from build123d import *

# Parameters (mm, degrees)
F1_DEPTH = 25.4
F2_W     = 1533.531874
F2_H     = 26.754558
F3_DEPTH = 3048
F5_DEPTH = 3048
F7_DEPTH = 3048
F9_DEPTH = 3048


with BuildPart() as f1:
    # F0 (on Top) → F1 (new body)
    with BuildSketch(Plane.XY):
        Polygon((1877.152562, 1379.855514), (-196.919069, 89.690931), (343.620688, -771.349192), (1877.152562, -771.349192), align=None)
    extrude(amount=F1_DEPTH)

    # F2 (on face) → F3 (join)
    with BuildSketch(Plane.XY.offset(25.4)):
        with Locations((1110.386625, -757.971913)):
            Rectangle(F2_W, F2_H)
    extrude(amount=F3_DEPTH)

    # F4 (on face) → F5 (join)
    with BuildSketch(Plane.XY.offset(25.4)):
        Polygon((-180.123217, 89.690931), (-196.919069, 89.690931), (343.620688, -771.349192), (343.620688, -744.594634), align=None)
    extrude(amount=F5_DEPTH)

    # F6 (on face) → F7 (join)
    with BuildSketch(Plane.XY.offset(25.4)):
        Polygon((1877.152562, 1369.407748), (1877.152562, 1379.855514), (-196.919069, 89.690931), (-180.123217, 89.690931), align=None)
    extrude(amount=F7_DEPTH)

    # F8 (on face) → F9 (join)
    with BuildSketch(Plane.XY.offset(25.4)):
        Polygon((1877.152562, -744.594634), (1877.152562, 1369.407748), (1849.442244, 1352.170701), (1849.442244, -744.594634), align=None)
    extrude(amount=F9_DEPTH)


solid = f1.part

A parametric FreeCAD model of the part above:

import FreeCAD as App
import Part
import Sketcher
Q = App.Units.Quantity


def add_polygon(sketch, points):
    """Adds a closed chain of lines whose ends are joined by coincident constraints."""
    first, n = sketch.GeometryCount, len(points)
    for a, b in zip(points, points[1:] + points[:1]):
        sketch.addGeometry(Part.LineSegment(App.Vector(*a, 0), App.Vector(*b, 0)), False)
    for i in range(n):
        sketch.addConstraint(Sketcher.Constraint("Coincident", first + i, 2, first + (i + 1) % n, 1))

doc = App.newDocument("Part")
body = doc.addObject("PartDesign::Body", "Body")

sketch1 = body.newObject("Sketcher::SketchObject", "Sketch")
sketch1.AttachmentSupport = (doc.getObject("XY_Plane"), [""])
sketch1.MapMode = "FlatFace"
add_polygon(sketch1, [(1877, 1380), (-197, 90), (344, -771), (1877, -771)])
sketch1.addConstraint([
    Sketcher.Constraint("Horizontal", 2),
    Sketcher.Constraint("Vertical", 3),
    Sketcher.Constraint("Distance", 0, Q("2442.600619 mm")),
    Sketcher.Constraint("Distance", 1, Q("1016.648082 mm")),
    Sketcher.Constraint("DistanceX", 2, 1, 2, 2, Q("1533.531874 mm")),
    Sketcher.Constraint("DistanceY", 3, 1, 3, 2, Q("2151.204706 mm")),
    Sketcher.Constraint("DistanceX", 0, 2, -1, 1, Q("196.919069 mm")),
    Sketcher.Constraint("DistanceY", -1, 1, 0, 2, Q("89.690931 mm")),
])
pad1 = body.newObject("PartDesign::Pad", "Pad")
pad1.Profile = sketch1
pad1.Length = Q("1 in")

sketch2 = body.newObject("Sketcher::SketchObject", "Sketch001")
sketch2.AttachmentSupport = (doc.getObject("XY_Plane"), [""])
sketch2.MapMode = "FlatFace"
sketch2.AttachmentOffset = App.Placement(App.Vector(0, 0, 1 * 25.4), App.Rotation())
add_polygon(sketch2, [(344, -745), (344, -771), (1877, -771), (1877, -745)])
sketch2.addConstraint([
    Sketcher.Constraint("Vertical", 0),
    Sketcher.Constraint("Horizontal", 1),
    Sketcher.Constraint("Vertical", 2),
    Sketcher.Constraint("Horizontal", 3),
    Sketcher.Constraint("DistanceX", 1, 1, 1, 2, Q("1533.531874 mm")),
    Sketcher.Constraint("DistanceY", 0, 2, 0, 1, Q("26.754558 mm")),
    Sketcher.Constraint("DistanceY", 0, 2, -1, 1, Q("771.349192 mm")),
    Sketcher.Constraint("DistanceX", -1, 1, 1, 2, Q("1877.152562 mm")),
])
pad2 = body.newObject("PartDesign::Pad", "Pad001")
pad2.Profile = sketch2
pad2.Length = Q("120 in")

sketch3 = body.newObject("Sketcher::SketchObject", "Sketch002")
sketch3.AttachmentSupport = (doc.getObject("XY_Plane"), [""])
sketch3.MapMode = "FlatFace"
sketch3.AttachmentOffset = App.Placement(App.Vector(0, 0, 1 * 25.4), App.Rotation())
add_polygon(sketch3, [(-180, 90), (-197, 90), (344, -771), (344, -745)])
sketch3.addConstraint([
    Sketcher.Constraint("Horizontal", 0),
    Sketcher.Constraint("Vertical", 2),
    Sketcher.Constraint("Parallel", 1, 3),
    Sketcher.Constraint("DistanceX", 0, 2, 0, 1, Q("16.795852 mm")),
    Sketcher.Constraint("Distance", 1, Q("1016.648082 mm")),
    Sketcher.Constraint("DistanceY", 2, 1, 2, 2, Q("26.754558 mm")),
    Sketcher.Constraint("DistanceX", 0, 2, -1, 1, Q("196.919069 mm")),
    Sketcher.Constraint("DistanceY", -1, 1, 0, 2, Q("89.690931 mm")),
])
pad3 = body.newObject("PartDesign::Pad", "Pad002")
pad3.Profile = sketch3
pad3.Length = Q("120 in")

sketch4 = body.newObject("Sketcher::SketchObject", "Sketch003")
sketch4.AttachmentSupport = (doc.getObject("XY_Plane"), [""])
sketch4.MapMode = "FlatFace"
sketch4.AttachmentOffset = App.Placement(App.Vector(0, 0, 1 * 25.4), App.Rotation())
add_polygon(sketch4, [(1877.152562, 1369.407748), (1877.152562, 1379.855514), (-196.919069, 89.690931), (-180.123217, 89.690931)])
sketch4.addConstraint([
    Sketcher.Constraint("Vertical", 0),
    Sketcher.Constraint("Horizontal", 2),
    Sketcher.Constraint("Parallel", 1, 3),
    Sketcher.Constraint("DistanceX", 2, 1, 2, 2, Q("16.795852 mm")),
    Sketcher.Constraint("Distance", 1, Q("2442.600619 mm")),
    Sketcher.Constraint("DistanceY", 0, 1, 0, 2, Q("10.447766 mm")),
    Sketcher.Constraint("DistanceX", -1, 1, 0, 2, Q("1877.152562 mm")),
    Sketcher.Constraint("DistanceY", -1, 1, 1, 2, Q("89.690931 mm")),
])
pad4 = body.newObject("PartDesign::Pad", "Pad003")
pad4.Profile = sketch4
pad4.Length = Q("120 in")

sketch5 = body.newObject("Sketcher::SketchObject", "Sketch004")
sketch5.AttachmentSupport = (doc.getObject("XY_Plane"), [""])
sketch5.MapMode = "FlatFace"
sketch5.AttachmentOffset = App.Placement(App.Vector(0, 0, 1 * 25.4), App.Rotation())
add_polygon(sketch5, [(1877, -745), (1877, 1369), (1849, 1352), (1849, -745)])
sketch5.addConstraint([
    Sketcher.Constraint("Vertical", 0),
    Sketcher.Constraint("Vertical", 2),
    Sketcher.Constraint("Horizontal", 3),
    Sketcher.Constraint("DistanceY", -1, 1, 1, 2, Q("1352.170701 mm")),
    Sketcher.Constraint("DistanceX", 3, 1, 3, 2, Q("27.710318 mm")),
    Sketcher.Constraint("DistanceY", 0, 1, 0, 2, Q("2114.002382 mm")),
    Sketcher.Constraint("DistanceY", 2, 2, 2, 1, Q("2096.765335 mm")),
    Sketcher.Constraint("DistanceX", -1, 1, 0, 2, Q("1877.152562 mm")),
])
pad5 = body.newObject("PartDesign::Pad", "Pad004")
pad5.Profile = sketch5
pad5.Length = Q("120 in")

doc.recompute()
